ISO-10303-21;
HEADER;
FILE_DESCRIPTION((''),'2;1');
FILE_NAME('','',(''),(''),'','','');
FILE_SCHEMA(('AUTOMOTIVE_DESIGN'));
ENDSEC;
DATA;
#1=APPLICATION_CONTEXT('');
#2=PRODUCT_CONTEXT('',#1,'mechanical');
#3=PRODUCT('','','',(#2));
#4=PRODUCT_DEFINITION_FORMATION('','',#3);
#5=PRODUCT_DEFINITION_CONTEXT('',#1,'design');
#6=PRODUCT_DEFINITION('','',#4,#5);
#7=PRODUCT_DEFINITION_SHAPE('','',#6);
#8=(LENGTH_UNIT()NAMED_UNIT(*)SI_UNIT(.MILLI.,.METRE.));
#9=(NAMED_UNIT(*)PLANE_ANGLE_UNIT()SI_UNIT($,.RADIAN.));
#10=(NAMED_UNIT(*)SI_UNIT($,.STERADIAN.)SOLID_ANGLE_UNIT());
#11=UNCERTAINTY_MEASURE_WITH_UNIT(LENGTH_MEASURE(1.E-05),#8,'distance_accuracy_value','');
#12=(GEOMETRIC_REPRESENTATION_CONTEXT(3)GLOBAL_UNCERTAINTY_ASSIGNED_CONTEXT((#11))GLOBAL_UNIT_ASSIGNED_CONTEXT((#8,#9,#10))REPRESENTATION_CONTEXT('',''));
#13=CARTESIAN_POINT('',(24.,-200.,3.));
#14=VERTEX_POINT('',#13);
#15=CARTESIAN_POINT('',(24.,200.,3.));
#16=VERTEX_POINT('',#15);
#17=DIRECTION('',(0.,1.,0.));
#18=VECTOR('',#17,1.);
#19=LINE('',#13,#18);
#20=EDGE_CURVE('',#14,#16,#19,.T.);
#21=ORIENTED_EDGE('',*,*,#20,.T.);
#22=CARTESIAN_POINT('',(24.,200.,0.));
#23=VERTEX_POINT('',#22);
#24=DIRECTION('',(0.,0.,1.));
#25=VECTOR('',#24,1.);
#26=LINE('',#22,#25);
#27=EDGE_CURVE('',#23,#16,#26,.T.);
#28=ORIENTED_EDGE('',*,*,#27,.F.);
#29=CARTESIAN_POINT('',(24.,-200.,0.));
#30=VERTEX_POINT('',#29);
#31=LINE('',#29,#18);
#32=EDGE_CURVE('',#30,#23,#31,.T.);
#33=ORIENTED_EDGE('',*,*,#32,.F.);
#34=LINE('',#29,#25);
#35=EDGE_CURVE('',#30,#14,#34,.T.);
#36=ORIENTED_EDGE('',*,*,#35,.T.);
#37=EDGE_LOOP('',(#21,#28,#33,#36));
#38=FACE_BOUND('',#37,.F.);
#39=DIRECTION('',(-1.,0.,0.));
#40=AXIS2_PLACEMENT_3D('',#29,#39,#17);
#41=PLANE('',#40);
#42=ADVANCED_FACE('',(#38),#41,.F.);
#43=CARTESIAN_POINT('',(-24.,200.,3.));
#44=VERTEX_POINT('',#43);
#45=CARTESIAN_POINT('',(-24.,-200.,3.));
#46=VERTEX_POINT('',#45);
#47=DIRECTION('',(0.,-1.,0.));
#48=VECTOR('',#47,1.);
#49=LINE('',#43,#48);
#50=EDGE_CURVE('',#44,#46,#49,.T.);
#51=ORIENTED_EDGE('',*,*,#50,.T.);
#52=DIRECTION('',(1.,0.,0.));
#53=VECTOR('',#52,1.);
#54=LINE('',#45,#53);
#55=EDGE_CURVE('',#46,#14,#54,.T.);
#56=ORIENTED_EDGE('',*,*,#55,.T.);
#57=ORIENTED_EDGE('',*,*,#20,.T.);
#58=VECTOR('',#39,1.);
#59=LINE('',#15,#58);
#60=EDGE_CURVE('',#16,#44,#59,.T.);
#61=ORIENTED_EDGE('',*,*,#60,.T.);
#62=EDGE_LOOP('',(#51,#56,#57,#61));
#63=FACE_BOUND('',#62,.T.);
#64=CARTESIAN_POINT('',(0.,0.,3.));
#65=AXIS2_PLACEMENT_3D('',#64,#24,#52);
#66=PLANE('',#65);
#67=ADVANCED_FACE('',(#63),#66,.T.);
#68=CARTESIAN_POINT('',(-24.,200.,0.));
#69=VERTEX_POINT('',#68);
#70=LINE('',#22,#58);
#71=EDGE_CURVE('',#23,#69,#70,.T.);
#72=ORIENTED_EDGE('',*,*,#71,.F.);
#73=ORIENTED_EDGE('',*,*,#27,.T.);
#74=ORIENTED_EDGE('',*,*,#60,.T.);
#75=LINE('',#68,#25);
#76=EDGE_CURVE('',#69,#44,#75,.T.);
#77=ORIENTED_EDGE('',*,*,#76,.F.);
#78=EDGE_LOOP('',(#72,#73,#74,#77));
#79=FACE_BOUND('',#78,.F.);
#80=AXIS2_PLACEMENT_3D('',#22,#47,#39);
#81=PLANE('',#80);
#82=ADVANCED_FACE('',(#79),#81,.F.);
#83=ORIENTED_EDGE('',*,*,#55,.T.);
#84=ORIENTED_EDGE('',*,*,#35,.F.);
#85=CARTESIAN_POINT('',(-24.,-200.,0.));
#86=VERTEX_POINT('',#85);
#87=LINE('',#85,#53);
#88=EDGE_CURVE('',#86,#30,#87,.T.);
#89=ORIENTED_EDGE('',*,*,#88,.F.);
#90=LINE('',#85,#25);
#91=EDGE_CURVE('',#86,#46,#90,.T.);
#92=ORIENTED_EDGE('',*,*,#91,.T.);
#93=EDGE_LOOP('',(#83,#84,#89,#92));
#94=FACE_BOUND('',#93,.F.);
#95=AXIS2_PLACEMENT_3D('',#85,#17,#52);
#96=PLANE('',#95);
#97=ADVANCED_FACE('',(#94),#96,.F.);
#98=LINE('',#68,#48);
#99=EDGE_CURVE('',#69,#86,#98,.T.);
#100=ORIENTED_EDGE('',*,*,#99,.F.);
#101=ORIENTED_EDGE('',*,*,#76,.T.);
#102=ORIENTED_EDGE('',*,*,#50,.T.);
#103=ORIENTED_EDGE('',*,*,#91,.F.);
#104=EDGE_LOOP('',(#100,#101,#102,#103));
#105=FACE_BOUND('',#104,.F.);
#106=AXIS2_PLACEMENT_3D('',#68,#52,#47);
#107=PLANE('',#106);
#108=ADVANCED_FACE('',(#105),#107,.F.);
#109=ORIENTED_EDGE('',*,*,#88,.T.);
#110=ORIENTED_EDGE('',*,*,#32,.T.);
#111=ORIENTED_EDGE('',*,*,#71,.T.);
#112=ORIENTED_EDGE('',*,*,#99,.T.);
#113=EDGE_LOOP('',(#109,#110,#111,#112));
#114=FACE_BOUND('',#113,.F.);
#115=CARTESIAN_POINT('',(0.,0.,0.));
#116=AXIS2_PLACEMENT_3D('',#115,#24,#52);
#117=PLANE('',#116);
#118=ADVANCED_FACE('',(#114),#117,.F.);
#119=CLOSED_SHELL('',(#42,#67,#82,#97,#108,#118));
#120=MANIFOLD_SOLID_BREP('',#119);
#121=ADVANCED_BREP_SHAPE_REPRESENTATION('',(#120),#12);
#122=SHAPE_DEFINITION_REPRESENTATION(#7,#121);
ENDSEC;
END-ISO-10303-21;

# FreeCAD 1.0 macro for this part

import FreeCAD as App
import Part
import Sketcher

V = App.Vector

doc = App.newDocument("Part")
params = doc.addObject("Spreadsheet::Sheet", "Params")
for row, (alias, value) in enumerate([
    ("sketch1_width", "48 mm"),
    ("sketch1_height", "400 mm"),
    ("pad1_length", "3 mm"),
], start=1):
    params.set(f"A{row}", alias)
    params.set(f"B{row}", "=" + value)
    params.setAlias(f"B{row}", alias)

body = doc.addObject("PartDesign::Body", "Body")

# Sketch on XY plane
sketch1 = doc.addObject("Sketcher::SketchObject", "Sketch")
body.addObject(sketch1)
sketch1.AttachmentSupport = (doc.XY_Plane, [""])
sketch1.MapMode = "FlatFace"
sketch1.addGeometry([
    Part.LineSegment(V(-24, 200, 0), V(-24, -200, 0)),
    Part.LineSegment(V(-24, -200, 0), V(24, -200, 0)),
    Part.LineSegment(V(24, -200, 0), V(24, 200, 0)),
    Part.LineSegment(V(24, 200, 0), V(-24, 200, 0)),
], False)
sketch1.addConstraint([
    Sketcher.Constraint("Coincident", 0, 2, 1, 1),
    Sketcher.Constraint("Coincident", 1, 2, 2, 1),
    Sketcher.Constraint("Coincident", 2, 2, 3, 1),
    Sketcher.Constraint("Coincident", 3, 2, 0, 1),
    Sketcher.Constraint("Vertical", 0),
    Sketcher.Constraint("Horizontal", 1),
    Sketcher.Constraint("Vertical", 2),
    Sketcher.Constraint("Horizontal", 3),
    Sketcher.Constraint("Symmetric", 0, 2, 2, 2, -1, 1),
    Sketcher.Constraint("DistanceX", 1, 1, 1, 2, 48.0),
    Sketcher.Constraint("DistanceY", 0, 2, 0, 1, 400.0),
])
sketch1.setExpression("Constraints[9]", "Params.sketch1_width")
sketch1.setExpression("Constraints[10]", "Params.sketch1_height")
pad1 = doc.addObject("PartDesign::Pad", "Pad")
body.addObject(pad1)
pad1.Profile = sketch1
pad1.setExpression("Length", "Params.pad1_length")

doc.recompute()
